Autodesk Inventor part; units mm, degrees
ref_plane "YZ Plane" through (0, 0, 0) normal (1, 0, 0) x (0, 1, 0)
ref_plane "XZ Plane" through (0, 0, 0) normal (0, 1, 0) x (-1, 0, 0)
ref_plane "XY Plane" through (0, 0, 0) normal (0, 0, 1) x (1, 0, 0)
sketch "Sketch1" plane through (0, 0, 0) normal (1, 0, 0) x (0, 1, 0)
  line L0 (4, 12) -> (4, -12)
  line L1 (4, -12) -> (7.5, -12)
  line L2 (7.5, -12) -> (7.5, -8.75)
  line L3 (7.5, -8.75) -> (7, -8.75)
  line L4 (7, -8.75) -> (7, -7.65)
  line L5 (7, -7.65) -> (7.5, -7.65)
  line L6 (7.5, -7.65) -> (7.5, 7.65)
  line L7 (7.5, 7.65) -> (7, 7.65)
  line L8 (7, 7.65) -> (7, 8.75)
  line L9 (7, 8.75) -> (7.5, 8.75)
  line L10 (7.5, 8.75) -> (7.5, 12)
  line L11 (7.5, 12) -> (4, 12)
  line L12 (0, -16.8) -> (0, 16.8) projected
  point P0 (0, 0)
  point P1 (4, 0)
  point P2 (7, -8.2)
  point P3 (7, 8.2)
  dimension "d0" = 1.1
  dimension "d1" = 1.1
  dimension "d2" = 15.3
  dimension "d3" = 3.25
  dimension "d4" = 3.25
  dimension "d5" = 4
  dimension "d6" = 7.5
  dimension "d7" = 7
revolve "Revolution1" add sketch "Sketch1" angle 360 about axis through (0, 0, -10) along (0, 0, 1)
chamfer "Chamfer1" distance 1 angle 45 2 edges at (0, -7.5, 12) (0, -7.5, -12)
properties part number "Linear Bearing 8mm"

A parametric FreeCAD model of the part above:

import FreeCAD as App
import Part
import Sketcher


def edges_at(feature, points):
    """Names of the edges that pass closest to the given points."""
    edges = feature.Shape.Edges
    near = lambda p: min(range(len(edges)), key=lambda i: edges[i].distToShape(Part.Vertex(*p))[0])
    return sorted({f"Edge{near(p) + 1}" for p in points})

doc = App.newDocument("Part")
body = doc.addObject("PartDesign::Body", "Body")

# Sketch on YZ plane
sketch1 = doc.addObject("Sketcher::SketchObject", "Sketch")
body.addObject(sketch1)
sketch1.AttachmentSupport = (doc.YZ_Plane, [""])
sketch1.MapMode = "FlatFace"
sketch1.addGeometry([
    Part.LineSegment(App.Vector(7.5, 12, 0), App.Vector(4, 12, 0)),  # 0
    Part.LineSegment(App.Vector(4, 12, 0), App.Vector(4, -12, 0)),  # 1
    Part.LineSegment(App.Vector(4, -12, 0), App.Vector(7.5, -12, 0)),  # 2
    Part.LineSegment(App.Vector(7.5, -12, 0), App.Vector(7.5, -8.8, 0)),  # 3
    Part.LineSegment(App.Vector(7.5, -8.8, 0), App.Vector(7, -8.8, 0)),  # 4
    Part.LineSegment(App.Vector(7, -8.8, 0), App.Vector(7, -7.7, 0)),  # 5
    Part.LineSegment(App.Vector(7, -7.7, 0), App.Vector(7.5, -7.7, 0)),  # 6
    Part.LineSegment(App.Vector(7.5, -7.7, 0), App.Vector(7.5, 7.7, 0)),  # 7
    Part.LineSegment(App.Vector(7.5, 7.7, 0), App.Vector(7, 7.7, 0)),  # 8
    Part.LineSegment(App.Vector(7, 7.7, 0), App.Vector(7, 8.8, 0)),  # 9
    Part.LineSegment(App.Vector(7, 8.8, 0), App.Vector(7.5, 8.8, 0)),  # 10
    Part.LineSegment(App.Vector(7.5, 8.8, 0), App.Vector(7.5, 12, 0)),  # 11
], False)
sketch1.addConstraint([
    Sketcher.Constraint("Coincident", 0, 2, 1, 1),
    Sketcher.Constraint("Coincident", 1, 2, 2, 1),
    Sketcher.Constraint("Coincident", 2, 2, 3, 1),
    Sketcher.Constraint("Coincident", 3, 2, 4, 1),
    Sketcher.Constraint("Coincident", 4, 2, 5, 1),
    Sketcher.Constraint("Coincident", 5, 2, 6, 1),
    Sketcher.Constraint("Coincident", 6, 2, 7, 1),
    Sketcher.Constraint("Coincident", 7, 2, 8, 1),
    Sketcher.Constraint("Coincident", 8, 2, 9, 1),
    Sketcher.Constraint("Coincident", 9, 2, 10, 1),
    Sketcher.Constraint("Coincident", 10, 2, 11, 1),
    Sketcher.Constraint("Coincident", 11, 2, 0, 1),
    Sketcher.Constraint("Horizontal", 0),
    Sketcher.Constraint("Vertical", 1),
    Sketcher.Constraint("Horizontal", 2),
    Sketcher.Constraint("Vertical", 3),
    Sketcher.Constraint("Horizontal", 4),
    Sketcher.Constraint("Vertical", 5),
    Sketcher.Constraint("Horizontal", 6),
    Sketcher.Constraint("Vertical", 7),
    Sketcher.Constraint("Horizontal", 8),
    Sketcher.Constraint("Vertical", 9),
    Sketcher.Constraint("Horizontal", 10),
    Sketcher.Constraint("Vertical", 11),
    Sketcher.Constraint("Symmetric", 5, 2, 8, 2, -1),
    Sketcher.Constraint("Symmetric", 3, 2, 10, 2, -1),
    Sketcher.Constraint("Vertical", 3, 2, 6, 2),
    Sketcher.Constraint("Equal", 3, 11),
    Sketcher.Constraint("DistanceY", 5, 1, 5, 2, 1.1),
    Sketcher.Constraint("DistanceY", 7, 1, 7, 2, 15.3),
    Sketcher.Constraint("DistanceX", -1, 1, 0, 2, 4.0),
    Sketcher.Constraint("DistanceX", -1, 1, 4, 2, 7.0),
    Sketcher.Constraint("DistanceY", 3, 1, 3, 2, 3.25),
    Sketcher.Constraint("DistanceX", -1, 1, 2, 2, 7.5),
])
revolution = doc.addObject("PartDesign::Revolution", "Revolution")
body.addObject(revolution)
revolution.Profile = sketch1
revolution.ReferenceAxis = (sketch1, ["V_Axis"])
revolution.Angle = 360
doc.recompute()

chamfer = doc.addObject("PartDesign::Chamfer", "Chamfer")
body.addObject(chamfer)
chamfer.Base = (revolution, edges_at(revolution, [(0, -7.5, 12), (0, -7.5, -12)]))
chamfer.Size = 1

doc.recompute()
